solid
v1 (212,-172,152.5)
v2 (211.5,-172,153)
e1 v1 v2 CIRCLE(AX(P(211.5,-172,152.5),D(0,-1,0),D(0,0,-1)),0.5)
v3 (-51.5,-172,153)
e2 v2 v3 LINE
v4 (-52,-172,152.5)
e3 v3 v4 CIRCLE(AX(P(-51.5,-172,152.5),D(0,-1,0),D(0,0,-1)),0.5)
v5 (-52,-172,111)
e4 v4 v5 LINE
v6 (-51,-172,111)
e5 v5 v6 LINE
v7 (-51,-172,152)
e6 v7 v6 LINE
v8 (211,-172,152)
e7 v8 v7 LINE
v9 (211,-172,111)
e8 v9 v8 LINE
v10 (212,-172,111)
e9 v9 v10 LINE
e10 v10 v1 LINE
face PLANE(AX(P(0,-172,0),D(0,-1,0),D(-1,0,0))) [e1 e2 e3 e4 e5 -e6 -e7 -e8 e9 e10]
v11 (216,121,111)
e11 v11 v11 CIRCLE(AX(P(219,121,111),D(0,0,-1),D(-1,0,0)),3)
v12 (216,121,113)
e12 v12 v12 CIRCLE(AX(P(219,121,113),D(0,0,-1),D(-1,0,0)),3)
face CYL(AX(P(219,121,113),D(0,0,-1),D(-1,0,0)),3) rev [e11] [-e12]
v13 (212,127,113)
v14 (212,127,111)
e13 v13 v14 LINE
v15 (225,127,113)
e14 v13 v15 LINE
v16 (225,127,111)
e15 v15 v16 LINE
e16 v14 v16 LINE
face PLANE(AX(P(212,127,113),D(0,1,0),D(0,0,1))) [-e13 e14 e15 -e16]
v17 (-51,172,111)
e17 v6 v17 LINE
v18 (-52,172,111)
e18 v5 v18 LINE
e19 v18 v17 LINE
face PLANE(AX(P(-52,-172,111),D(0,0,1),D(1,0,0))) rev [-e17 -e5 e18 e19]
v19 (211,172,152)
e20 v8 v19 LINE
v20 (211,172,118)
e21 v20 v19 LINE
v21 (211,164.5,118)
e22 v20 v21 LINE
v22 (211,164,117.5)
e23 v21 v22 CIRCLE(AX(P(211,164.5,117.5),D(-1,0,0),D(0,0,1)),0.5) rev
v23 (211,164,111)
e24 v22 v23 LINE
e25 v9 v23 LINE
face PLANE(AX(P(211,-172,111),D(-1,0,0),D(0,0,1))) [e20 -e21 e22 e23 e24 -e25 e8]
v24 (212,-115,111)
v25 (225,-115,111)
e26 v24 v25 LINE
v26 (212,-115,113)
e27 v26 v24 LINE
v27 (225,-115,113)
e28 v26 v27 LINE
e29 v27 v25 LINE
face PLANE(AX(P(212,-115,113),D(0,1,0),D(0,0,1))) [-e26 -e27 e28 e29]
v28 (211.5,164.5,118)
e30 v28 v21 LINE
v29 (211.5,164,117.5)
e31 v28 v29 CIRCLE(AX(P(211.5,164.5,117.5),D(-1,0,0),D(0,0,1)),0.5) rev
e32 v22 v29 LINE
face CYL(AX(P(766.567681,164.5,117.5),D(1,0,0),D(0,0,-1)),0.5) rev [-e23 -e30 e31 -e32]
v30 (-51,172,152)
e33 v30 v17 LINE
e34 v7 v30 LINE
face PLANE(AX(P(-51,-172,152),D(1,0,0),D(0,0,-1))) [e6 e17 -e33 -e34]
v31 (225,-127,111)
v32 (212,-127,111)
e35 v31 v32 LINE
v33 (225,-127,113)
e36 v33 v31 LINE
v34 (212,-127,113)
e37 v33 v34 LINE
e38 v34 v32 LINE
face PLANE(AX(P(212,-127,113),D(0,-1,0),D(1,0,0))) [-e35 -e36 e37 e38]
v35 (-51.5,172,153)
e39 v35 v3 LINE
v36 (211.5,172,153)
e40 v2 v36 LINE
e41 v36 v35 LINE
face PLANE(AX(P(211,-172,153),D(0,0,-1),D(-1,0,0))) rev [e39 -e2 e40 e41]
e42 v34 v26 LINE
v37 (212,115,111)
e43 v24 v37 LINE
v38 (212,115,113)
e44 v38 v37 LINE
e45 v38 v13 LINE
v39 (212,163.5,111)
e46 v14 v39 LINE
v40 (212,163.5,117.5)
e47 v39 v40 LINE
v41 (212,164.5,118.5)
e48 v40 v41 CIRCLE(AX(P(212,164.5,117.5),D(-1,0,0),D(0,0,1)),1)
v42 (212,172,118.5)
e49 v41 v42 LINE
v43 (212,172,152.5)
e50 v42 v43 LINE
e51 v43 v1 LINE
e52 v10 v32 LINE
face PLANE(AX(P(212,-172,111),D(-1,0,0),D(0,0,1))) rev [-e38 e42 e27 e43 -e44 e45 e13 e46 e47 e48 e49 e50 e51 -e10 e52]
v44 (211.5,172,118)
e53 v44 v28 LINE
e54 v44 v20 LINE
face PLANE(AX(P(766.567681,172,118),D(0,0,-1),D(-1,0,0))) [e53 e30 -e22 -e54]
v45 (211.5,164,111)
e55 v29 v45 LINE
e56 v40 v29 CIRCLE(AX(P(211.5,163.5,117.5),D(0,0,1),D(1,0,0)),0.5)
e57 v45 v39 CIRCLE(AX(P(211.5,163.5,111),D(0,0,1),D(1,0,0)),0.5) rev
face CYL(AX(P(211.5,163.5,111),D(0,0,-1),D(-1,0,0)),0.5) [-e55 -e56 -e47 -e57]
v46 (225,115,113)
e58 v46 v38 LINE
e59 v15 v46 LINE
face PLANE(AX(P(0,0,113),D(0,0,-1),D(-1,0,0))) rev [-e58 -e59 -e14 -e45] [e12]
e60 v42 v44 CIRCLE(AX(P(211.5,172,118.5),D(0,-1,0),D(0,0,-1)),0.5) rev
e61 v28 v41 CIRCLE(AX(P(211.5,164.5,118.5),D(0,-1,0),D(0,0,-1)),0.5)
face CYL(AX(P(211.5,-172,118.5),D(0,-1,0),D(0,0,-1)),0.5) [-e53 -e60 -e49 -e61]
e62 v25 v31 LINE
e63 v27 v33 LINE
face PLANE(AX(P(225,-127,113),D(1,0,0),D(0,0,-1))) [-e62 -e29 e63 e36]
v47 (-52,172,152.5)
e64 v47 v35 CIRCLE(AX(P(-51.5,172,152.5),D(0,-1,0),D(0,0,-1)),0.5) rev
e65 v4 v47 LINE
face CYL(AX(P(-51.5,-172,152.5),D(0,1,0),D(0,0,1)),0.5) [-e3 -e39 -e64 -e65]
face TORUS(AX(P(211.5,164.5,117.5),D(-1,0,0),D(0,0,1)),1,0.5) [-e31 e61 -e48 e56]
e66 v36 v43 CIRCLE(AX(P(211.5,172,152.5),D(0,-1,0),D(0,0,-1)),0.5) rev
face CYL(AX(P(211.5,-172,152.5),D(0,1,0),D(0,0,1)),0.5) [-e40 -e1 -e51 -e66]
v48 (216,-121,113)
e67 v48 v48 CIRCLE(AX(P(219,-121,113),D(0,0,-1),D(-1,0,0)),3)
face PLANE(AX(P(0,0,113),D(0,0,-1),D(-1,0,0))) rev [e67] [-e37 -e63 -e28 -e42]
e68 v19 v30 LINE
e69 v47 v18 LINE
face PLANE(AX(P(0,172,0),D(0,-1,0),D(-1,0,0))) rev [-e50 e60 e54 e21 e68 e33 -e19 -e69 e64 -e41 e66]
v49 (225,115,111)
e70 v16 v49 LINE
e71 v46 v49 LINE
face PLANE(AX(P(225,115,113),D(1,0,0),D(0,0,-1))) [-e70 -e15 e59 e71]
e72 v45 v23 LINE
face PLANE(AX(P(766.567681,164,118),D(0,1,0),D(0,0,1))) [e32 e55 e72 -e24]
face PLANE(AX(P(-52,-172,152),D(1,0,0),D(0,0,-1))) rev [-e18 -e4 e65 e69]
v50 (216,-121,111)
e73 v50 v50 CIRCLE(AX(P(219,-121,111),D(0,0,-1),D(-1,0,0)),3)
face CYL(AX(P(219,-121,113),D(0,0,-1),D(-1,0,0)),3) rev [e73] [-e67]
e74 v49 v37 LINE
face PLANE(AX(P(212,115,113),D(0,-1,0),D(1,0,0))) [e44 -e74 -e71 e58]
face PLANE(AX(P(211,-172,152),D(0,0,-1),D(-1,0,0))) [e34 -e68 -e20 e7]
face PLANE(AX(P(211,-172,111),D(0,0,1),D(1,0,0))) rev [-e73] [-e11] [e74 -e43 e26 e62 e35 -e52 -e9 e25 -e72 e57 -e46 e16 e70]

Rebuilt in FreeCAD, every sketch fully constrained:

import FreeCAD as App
import Part
import Sketcher
from FreeCAD import Vector
Q = App.Units.Quantity


def edges_at(feature, points):
    """Names of the edges that pass closest to the given points."""
    edges = feature.Shape.Edges
    near = lambda p: min(range(len(edges)), key=lambda i: edges[i].distToShape(Part.Vertex(*p))[0])
    return sorted({f"Edge{near(p) + 1}" for p in points})

doc = App.newDocument("Part")
body = doc.addObject("PartDesign::Body", "Body")

sketch1 = body.newObject("Sketcher::SketchObject", "Sketch")
sketch1.AttachmentSupport = (doc.getObject("XZ_Plane"), [""])
sketch1.MapMode = "FlatFace"
sketch1.addGeometry([
    Part.LineSegment(Vector(211, 111, 0), Vector(211, 152, 0)),
    Part.LineSegment(Vector(211, 152, 0), Vector(-51, 152, 0)),
    Part.LineSegment(Vector(-51, 152, 0), Vector(-51, 111, 0)),
    Part.LineSegment(Vector(-51, 111, 0), Vector(-52, 111, 0)),
    Part.LineSegment(Vector(-52, 111, 0), Vector(-52, 153, 0)),
    Part.LineSegment(Vector(-52, 153, 0), Vector(212, 153, 0)),
    Part.LineSegment(Vector(212, 153, 0), Vector(212, 111, 0)),
    Part.LineSegment(Vector(212, 111, 0), Vector(211, 111, 0)),
], False)
sketch1.addConstraint([
    Sketcher.Constraint("Coincident", 0, 2, 1, 1),
    Sketcher.Constraint("Coincident", 1, 2, 2, 1),
    Sketcher.Constraint("Coincident", 2, 2, 3, 1),
    Sketcher.Constraint("Coincident", 3, 2, 4, 1),
    Sketcher.Constraint("Coincident", 4, 2, 5, 1),
    Sketcher.Constraint("Coincident", 5, 2, 6, 1),
    Sketcher.Constraint("Coincident", 6, 2, 7, 1),
    Sketcher.Constraint("Coincident", 7, 2, 0, 1),
    Sketcher.Constraint("Vertical", 0),
    Sketcher.Constraint("Horizontal", 1),
    Sketcher.Constraint("Vertical", 2),
    Sketcher.Constraint("Horizontal", 3),
    Sketcher.Constraint("Vertical", 4),
    Sketcher.Constraint("Horizontal", 5),
    Sketcher.Constraint("Vertical", 6),
    Sketcher.Constraint("Horizontal", 7),
    Sketcher.Constraint("Horizontal", 3, 2, 6, 2),
    Sketcher.Constraint("Equal", 3, 7),
    Sketcher.Constraint("DistanceX", 1, 2, 1, 1, Q("262 mm")),
    Sketcher.Constraint("DistanceX", 3, 2, 3, 1, Q("1 mm")),
    Sketcher.Constraint("DistanceY", 0, 1, 0, 2, Q("41 mm")),
    Sketcher.Constraint("DistanceY", 4, 1, 4, 2, Q("42 mm")),
    Sketcher.Constraint("DistanceX", -1, 1, 0, 2, Q("211 mm")),
    Sketcher.Constraint("DistanceY", -1, 1, 0, 2, Q("152 mm")),
])
pad1 = body.newObject("PartDesign::Pad", "Pad")
pad1.Profile = sketch1
pad1.Type = "TwoLengths"
pad1.Length = 172
pad1.Length2 = 172
pad1.Reversed = True

sketch2 = body.newObject("Sketcher::SketchObject", "Sketch001")
sketch2.AttachmentSupport = (doc.getObject("XY_Plane"), [""])
sketch2.MapMode = "FlatFace"
sketch2.AttachmentOffset = App.Placement(Vector(0, 0, 111), App.Rotation())
sketch2.addGeometry([
    Part.LineSegment(Vector(225, -115, 0), Vector(225, -127, 0)),
    Part.LineSegment(Vector(225, -127, 0), Vector(212, -127, 0)),
    Part.LineSegment(Vector(212, -127, 0), Vector(212, -115, 0)),
    Part.LineSegment(Vector(212, -115, 0), Vector(225, -115, 0)),
    Part.Circle(Vector(219, -121, 0), Vector(0, 0, 1), 3),
    Part.LineSegment(Vector(225, 127, 0), Vector(225, 115, 0)),
    Part.LineSegment(Vector(225, 115, 0), Vector(212, 115, 0)),
    Part.LineSegment(Vector(212, 115, 0), Vector(212, 127, 0)),
    Part.LineSegment(Vector(212, 127, 0), Vector(225, 127, 0)),
    Part.Circle(Vector(219, 121, 0), Vector(0, 0, 1), 3),
], False)
sketch2.addConstraint([
    Sketcher.Constraint("Coincident", 0, 2, 1, 1),
    Sketcher.Constraint("Coincident", 1, 2, 2, 1),
    Sketcher.Constraint("Coincident", 2, 2, 3, 1),
    Sketcher.Constraint("Coincident", 3, 2, 0, 1),
    Sketcher.Constraint("Coincident", 5, 2, 6, 1),
    Sketcher.Constraint("Coincident", 6, 2, 7, 1),
    Sketcher.Constraint("Coincident", 7, 2, 8, 1),
    Sketcher.Constraint("Coincident", 8, 2, 5, 1),
    Sketcher.Constraint("Vertical", 0),
    Sketcher.Constraint("Horizontal", 1),
    Sketcher.Constraint("Vertical", 2),
    Sketcher.Constraint("Horizontal", 3),
    Sketcher.Constraint("Vertical", 5),
    Sketcher.Constraint("Horizontal", 6),
    Sketcher.Constraint("Vertical", 7),
    Sketcher.Constraint("Horizontal", 8),
    Sketcher.Constraint("Equal", 4, 9),
    Sketcher.Constraint("Symmetric", 4, 3, 9, 3, -1),
    Sketcher.Constraint("Symmetric", 3, 2, 5, 2, -1),
    Sketcher.Constraint("Symmetric", 1, 2, 7, 2, -1),
    Sketcher.Constraint("Diameter", 4, Q("6 mm")),
    Sketcher.Constraint("DistanceX", 1, 2, 1, 1, Q("13 mm")),
    Sketcher.Constraint("DistanceY", 0, 2, 0, 1, Q("12 mm")),
    Sketcher.Constraint("DistanceX", -1, 1, 4, 3, Q("219 mm")),
    Sketcher.Constraint("DistanceY", 4, 3, -1, 1, Q("121 mm")),
    Sketcher.Constraint("DistanceX", -1, 1, 0, 2, Q("225 mm")),
    Sketcher.Constraint("DistanceY", 0, 2, -1, 1, Q("127 mm")),
])
pad2 = body.newObject("PartDesign::Pad", "Pad001")
pad2.Profile = sketch2
pad2.Length = 2
doc.recompute()

fillet = body.newObject("PartDesign::Fillet", "Fillet")
fillet.Base = (pad2, edges_at(pad2, [(212, 0, 153), (-52, 0, 153)]))
fillet.Radius = 0.5

sketch3 = body.newObject("Sketcher::SketchObject", "Sketch002")
sketch3.AttachmentSupport = (doc.getObject("YZ_Plane"), [""])
sketch3.MapMode = "FlatFace"
sketch3.AttachmentOffset = App.Placement(Vector(0, 0, 212), App.Rotation())
sketch3.addGeometry([
    Part.LineSegment(Vector(874, 118, 0), Vector(164, 118, 0)),
    Part.LineSegment(Vector(164, 118, 0), Vector(164, -591, 0)),
    Part.LineSegment(Vector(164, -591, 0), Vector(1155, -1583, 0)),
    Part.LineSegment(Vector(1155, -1583, 0), Vector(1865, -875, 0)),
    Part.LineSegment(Vector(1865, -875, 0), Vector(874, 118, 0)),
], False)
sketch3.addConstraint([
    Sketcher.Constraint("Coincident", 0, 2, 1, 1),
    Sketcher.Constraint("Coincident", 1, 2, 2, 1),
    Sketcher.Constraint("Coincident", 2, 2, 3, 1),
    Sketcher.Constraint("Coincident", 3, 2, 4, 1),
    Sketcher.Constraint("Coincident", 4, 2, 0, 1),
    Sketcher.Constraint("Horizontal", 0),
    Sketcher.Constraint("Vertical", 1),
    Sketcher.Constraint("Perpendicular", 2, 3),
    Sketcher.Constraint("Perpendicular", 3, 4),
    Sketcher.Constraint("Equal", 2, 4),
    Sketcher.Constraint("DistanceX", -1, 1, 0, 2, Q("164 mm")),
    Sketcher.Constraint("DistanceY", -1, 1, 0, 2, Q("118 mm")),
    Sketcher.Constraint("DistanceX", 0, 2, 0, 1, Q("709.551878 mm")),
    Sketcher.Constraint("DistanceY", 1, 2, 1, 1, Q("708.551878 mm")),
    Sketcher.Constraint("DistanceY", 2, 2, -1, 1, Q("1583.395439 mm")),
])
pocket1 = body.newObject("PartDesign::Pocket", "Pocket")
pocket1.Profile = sketch3
pocket1.Type = "TwoLengths"
pocket1.Length = 14
pocket1.Length2 = 2
pocket1.Reversed = True
doc.recompute()

fillet2 = body.newObject("PartDesign::Fillet", "Fillet001")
fillet2.Base = (pocket1, edges_at(pocket1, [(211.5, 164, 118)]))
fillet2.Radius = 0.5
doc.recompute()

fillet3 = body.newObject("PartDesign::Fillet", "Fillet002")
fillet3.Base = (fillet2, edges_at(fillet2, [(212, 164, 114.25), (212, 168.25, 118), (212, 164.146, 117.854)]))
fillet3.Radius = 0.5

doc.recompute()
